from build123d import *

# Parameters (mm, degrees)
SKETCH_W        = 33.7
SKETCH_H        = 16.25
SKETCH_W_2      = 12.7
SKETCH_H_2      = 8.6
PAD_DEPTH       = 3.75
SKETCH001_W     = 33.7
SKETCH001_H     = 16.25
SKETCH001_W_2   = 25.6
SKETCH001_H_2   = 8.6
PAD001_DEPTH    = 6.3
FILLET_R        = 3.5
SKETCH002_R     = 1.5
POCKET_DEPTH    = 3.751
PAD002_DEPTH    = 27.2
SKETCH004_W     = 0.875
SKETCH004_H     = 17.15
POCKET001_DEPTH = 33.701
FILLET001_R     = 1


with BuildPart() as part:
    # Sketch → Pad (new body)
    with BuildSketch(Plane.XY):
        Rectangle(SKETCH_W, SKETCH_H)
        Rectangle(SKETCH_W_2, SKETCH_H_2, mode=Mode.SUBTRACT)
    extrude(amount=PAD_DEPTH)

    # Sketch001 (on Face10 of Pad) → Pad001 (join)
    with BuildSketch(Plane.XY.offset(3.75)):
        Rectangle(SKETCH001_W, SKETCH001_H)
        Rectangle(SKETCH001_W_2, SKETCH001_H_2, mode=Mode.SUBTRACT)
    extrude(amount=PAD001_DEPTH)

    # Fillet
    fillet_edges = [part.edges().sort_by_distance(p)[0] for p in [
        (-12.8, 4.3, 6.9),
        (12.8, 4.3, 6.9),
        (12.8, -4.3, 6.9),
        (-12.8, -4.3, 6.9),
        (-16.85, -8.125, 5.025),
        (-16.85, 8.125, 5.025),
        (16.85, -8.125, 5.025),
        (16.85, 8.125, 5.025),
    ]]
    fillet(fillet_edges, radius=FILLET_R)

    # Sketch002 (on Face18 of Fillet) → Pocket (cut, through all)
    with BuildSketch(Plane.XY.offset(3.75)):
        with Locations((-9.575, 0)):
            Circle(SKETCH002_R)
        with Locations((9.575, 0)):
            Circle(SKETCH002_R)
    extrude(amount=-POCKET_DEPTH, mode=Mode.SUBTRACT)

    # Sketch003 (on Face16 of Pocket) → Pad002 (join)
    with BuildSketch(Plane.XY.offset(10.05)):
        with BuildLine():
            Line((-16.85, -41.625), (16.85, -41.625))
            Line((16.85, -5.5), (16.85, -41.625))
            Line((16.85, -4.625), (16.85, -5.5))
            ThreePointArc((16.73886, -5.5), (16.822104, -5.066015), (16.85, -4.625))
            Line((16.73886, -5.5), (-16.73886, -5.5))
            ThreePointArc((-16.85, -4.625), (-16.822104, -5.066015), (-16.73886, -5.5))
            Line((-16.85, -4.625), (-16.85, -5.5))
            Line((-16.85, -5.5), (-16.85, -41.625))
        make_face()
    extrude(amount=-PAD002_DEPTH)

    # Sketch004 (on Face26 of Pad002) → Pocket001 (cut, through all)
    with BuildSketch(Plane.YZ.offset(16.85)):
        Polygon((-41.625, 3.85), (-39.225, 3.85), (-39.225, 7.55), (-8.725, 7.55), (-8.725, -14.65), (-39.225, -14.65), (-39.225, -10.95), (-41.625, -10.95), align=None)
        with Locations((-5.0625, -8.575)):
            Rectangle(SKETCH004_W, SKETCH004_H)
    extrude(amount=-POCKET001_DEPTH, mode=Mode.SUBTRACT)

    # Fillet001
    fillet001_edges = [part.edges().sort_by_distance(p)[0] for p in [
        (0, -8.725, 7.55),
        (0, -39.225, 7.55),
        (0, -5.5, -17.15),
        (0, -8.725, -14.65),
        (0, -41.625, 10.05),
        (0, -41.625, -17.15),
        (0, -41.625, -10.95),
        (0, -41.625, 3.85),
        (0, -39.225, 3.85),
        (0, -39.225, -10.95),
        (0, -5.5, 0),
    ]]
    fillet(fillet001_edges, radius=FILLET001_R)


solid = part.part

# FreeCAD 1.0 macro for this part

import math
import FreeCAD as App
import Part
import Sketcher
from FreeCAD import Vector
Q = App.Units.Quantity


def edges_at(feature, points):
    """Names of the edges that pass closest to the given points."""
    edges = feature.Shape.Edges
    near = lambda p: min(range(len(edges)), key=lambda i: edges[i].distToShape(Part.Vertex(*p))[0])
    return sorted({f"Edge{near(p) + 1}" for p in points})

doc = App.newDocument("Part")
params = doc.addObject("Spreadsheet::Sheet", "Params")
for row, (alias, value) in enumerate([
    ("sketch1_width", "33.7 mm"),
    ("sketch1_width2", "12.7 mm"),
    ("sketch1_height", "8.6 mm"),
    ("sketch1_height2", "16.25 mm"),
    ("pad1_length", "3.75 mm"),
    ("sketch2_width", "33.7 mm"),
    ("sketch2_width2", "25.6 mm"),
    ("sketch2_height", "8.6 mm"),
    ("sketch2_height2", "16.25 mm"),
    ("pad2_length", "6.3 mm"),
    ("fillet_radius", "3.5 mm"),
    ("sketch3_diameter", "3 mm"),
    ("sketch4_height", "37 mm"),
    ("sketch4_width", "33.7 mm"),
    ("pad3_length", "27.2 mm"),
    ("sketch5_width", "2.4 mm"),
    ("sketch5_width2", "30.5 mm"),
    ("sketch5_height", "14.8 mm"),
    ("sketch5_height2", "3.7 mm"),
    ("sketch5_height3", "17.15 mm"),
    ("fillet2_radius", "1 mm"),
], start=1):
    params.set(f"A{row}", alias)
    params.set(f"B{row}", "=" + value)
    params.setAlias(f"B{row}", alias)

body = doc.addObject("PartDesign::Body", "Body")

# Sketch on XY plane
sketch1 = doc.addObject("Sketcher::SketchObject", "Sketch")
body.addObject(sketch1)
sketch1.AttachmentSupport = (doc.XY_Plane, [""])
sketch1.MapMode = "FlatFace"
sketch1.addGeometry([
    Part.LineSegment(Vector(-17, 8, 0), Vector(-17, -8, 0)),  # 0
    Part.LineSegment(Vector(-17, -8, 0), Vector(17, -8, 0)),  # 1
    Part.LineSegment(Vector(17, -8, 0), Vector(17, 8, 0)),  # 2
    Part.LineSegment(Vector(17, 8, 0), Vector(-17, 8, 0)),  # 3
    Part.LineSegment(Vector(6, -4, 0), Vector(-6, -4, 0)),  # 4
    Part.LineSegment(Vector(-6, -4, 0), Vector(-6, 4, 0)),  # 5
    Part.LineSegment(Vector(-6, 4, 0), Vector(6, 4, 0)),  # 6
    Part.LineSegment(Vector(6, 4, 0), Vector(6, -4, 0)),  # 7
], False)
sketch1.addConstraint([
    Sketcher.Constraint("Coincident", 0, 2, 1, 1),
    Sketcher.Constraint("Coincident", 1, 2, 2, 1),
    Sketcher.Constraint("Coincident", 2, 2, 3, 1),
    Sketcher.Constraint("Coincident", 3, 2, 0, 1),
    Sketcher.Constraint("Coincident", 4, 2, 5, 1),
    Sketcher.Constraint("Coincident", 5, 2, 6, 1),
    Sketcher.Constraint("Coincident", 6, 2, 7, 1),
    Sketcher.Constraint("Coincident", 7, 2, 4, 1),
    Sketcher.Constraint("Vertical", 0),
    Sketcher.Constraint("Horizontal", 1),
    Sketcher.Constraint("Vertical", 2),
    Sketcher.Constraint("Horizontal", 3),
    Sketcher.Constraint("Horizontal", 4),
    Sketcher.Constraint("Vertical", 5),
    Sketcher.Constraint("Horizontal", 6),
    Sketcher.Constraint("Vertical", 7),
    Sketcher.Constraint("Symmetric", 0, 2, 2, 2, -1, 1),
    Sketcher.Constraint("Symmetric", 4, 2, 6, 2, -1, 1),
    Sketcher.Constraint("DistanceX", 1, 1, 1, 2, Q("33.7 mm")),
    Sketcher.Constraint("DistanceX", 4, 2, 4, 1, Q("12.7 mm")),
    Sketcher.Constraint("DistanceY", 5, 1, 5, 2, Q("8.6 mm")),
    Sketcher.Constraint("DistanceY", 0, 2, 0, 1, Q("16.25 mm")),
])
sketch1.setExpression("Constraints[18]", "Params.sketch1_width")
sketch1.setExpression("Constraints[19]", "Params.sketch1_width2")
sketch1.setExpression("Constraints[20]", "Params.sketch1_height")
sketch1.setExpression("Constraints[21]", "Params.sketch1_height2")
pad1 = doc.addObject("PartDesign::Pad", "Pad")
body.addObject(pad1)
pad1.Profile = sketch1
pad1.setExpression("Length", "Params.pad1_length")

# Sketch on XY plane
sketch2 = doc.addObject("Sketcher::SketchObject", "Sketch001")
body.addObject(sketch2)
sketch2.AttachmentSupport = (doc.XY_Plane, [""])
sketch2.MapMode = "FlatFace"
sketch2.AttachmentOffset = App.Placement(Vector(0, 0, 3.75), App.Rotation())
sketch2.addGeometry([
    Part.LineSegment(Vector(-17, 8, 0), Vector(-17, -8, 0)),  # 0
    Part.LineSegment(Vector(-17, -8, 0), Vector(17, -8, 0)),  # 1
    Part.LineSegment(Vector(17, -8, 0), Vector(17, 8, 0)),  # 2
    Part.LineSegment(Vector(17, 8, 0), Vector(-17, 8, 0)),  # 3
    Part.LineSegment(Vector(13, -4, 0), Vector(-13, -4, 0)),  # 4
    Part.LineSegment(Vector(-13, -4, 0), Vector(-13, 4, 0)),  # 5
    Part.LineSegment(Vector(-13, 4, 0), Vector(13, 4, 0)),  # 6
    Part.LineSegment(Vector(13, 4, 0), Vector(13, -4, 0)),  # 7
], False)
sketch2.addConstraint([
    Sketcher.Constraint("Coincident", 0, 2, 1, 1),
    Sketcher.Constraint("Coincident", 1, 2, 2, 1),
    Sketcher.Constraint("Coincident", 2, 2, 3, 1),
    Sketcher.Constraint("Coincident", 3, 2, 0, 1),
    Sketcher.Constraint("Coincident", 4, 2, 5, 1),
    Sketcher.Constraint("Coincident", 5, 2, 6, 1),
    Sketcher.Constraint("Coincident", 6, 2, 7, 1),
    Sketcher.Constraint("Coincident", 7, 2, 4, 1),
    Sketcher.Constraint("Vertical", 0),
    Sketcher.Constraint("Horizontal", 1),
    Sketcher.Constraint("Vertical", 2),
    Sketcher.Constraint("Horizontal", 3),
    Sketcher.Constraint("Horizontal", 4),
    Sketcher.Constraint("Vertical", 5),
    Sketcher.Constraint("Horizontal", 6),
    Sketcher.Constraint("Vertical", 7),
    Sketcher.Constraint("Symmetric", 0, 2, 2, 2, -1, 1),
    Sketcher.Constraint("Symmetric", 4, 2, 6, 2, -1, 1),
    Sketcher.Constraint("DistanceX", 1, 1, 1, 2, Q("33.7 mm")),
    Sketcher.Constraint("DistanceX", 4, 2, 4, 1, Q("25.6 mm")),
    Sketcher.Constraint("DistanceY", 5, 1, 5, 2, Q("8.6 mm")),
    Sketcher.Constraint("DistanceY", 0, 2, 0, 1, Q("16.25 mm")),
])
sketch2.setExpression("Constraints[18]", "Params.sketch2_width")
sketch2.setExpression("Constraints[19]", "Params.sketch2_width2")
sketch2.setExpression("Constraints[20]", "Params.sketch2_height")
sketch2.setExpression("Constraints[21]", "Params.sketch2_height2")
pad2 = doc.addObject("PartDesign::Pad", "Pad001")
body.addObject(pad2)
pad2.Profile = sketch2
pad2.setExpression("Length", "Params.pad2_length")
doc.recompute()

fillet = doc.addObject("PartDesign::Fillet", "Fillet")
body.addObject(fillet)
fillet.Base = (pad2, edges_at(pad2, [
    (-12.8, 4.3, 6.9),
    (12.8, 4.3, 6.9),
    (12.8, -4.3, 6.9),
    (-12.8, -4.3, 6.9),
    (-16.85, -8.125, 5.025),
    (-16.85, 8.125, 5.025),
    (16.85, -8.125, 5.025),
    (16.85, 8.125, 5.025),
]))
fillet.setExpression("Radius", "Params.fillet_radius")

# Sketch on XY plane
sketch3 = doc.addObject("Sketcher::SketchObject", "Sketch002")
body.addObject(sketch3)
sketch3.AttachmentSupport = (doc.XY_Plane, [""])
sketch3.MapMode = "FlatFace"
sketch3.AttachmentOffset = App.Placement(Vector(0, 0, 3.75), App.Rotation())
sketch3.addGeometry([
    Part.Circle(Vector(-9.6, 0, 0), Vector(0, 0, 1), 1.5),
    Part.Circle(Vector(9.6, 0, 0), Vector(0, 0, 1), 1.5),
], False)
sketch3.addConstraint([
    Sketcher.Constraint("Equal", 0, 1),
    Sketcher.Constraint("Symmetric", 0, 3, 1, 3, -1, 1),
    Sketcher.Constraint("PointOnObject", 0, 3, -1),
    Sketcher.Constraint("Diameter", 0, Q("3 mm")),
    Sketcher.Constraint("DistanceX", 0, 3, 1, 3, Q("19.15 mm")),
])
sketch3.setExpression("Constraints[3]", "Params.sketch3_diameter")
pocket1 = doc.addObject("PartDesign::Pocket", "Pocket")
body.addObject(pocket1)
pocket1.Profile = sketch3
pocket1.Type = "ThroughAll"

# Sketch on XY plane
sketch4 = doc.addObject("Sketcher::SketchObject", "Sketch003")
body.addObject(sketch4)
sketch4.AttachmentSupport = (doc.XY_Plane, [""])
sketch4.MapMode = "FlatFace"
sketch4.AttachmentOffset = App.Placement(Vector(0, 0, 10.05), App.Rotation())
sketch4.addGeometry([
    Part.LineSegment(Vector(-16.9, -41.6, 0), Vector(16.9, -41.6, 0)),  # 0
    Part.LineSegment(Vector(16.9, -41.6, 0), Vector(16.9, -4.6, 0)),  # 1
    Part.ArcOfCircle(Part.Circle(Vector(13.4, -4.6, 0), Vector(0, 0, 1), 3.5), math.radians(-14.48), math.radians(0)),  # 2
    Part.LineSegment(Vector(16.7, -5.5, 0), Vector(-16.7, -5.5, 0)),  # 3
    Part.ArcOfCircle(Part.Circle(Vector(-13.4, -4.6, 0), Vector(0, 0, 1), 3.5), math.radians(180), math.radians(194.48)),  # 4
    Part.LineSegment(Vector(-16.9, -4.6, 0), Vector(-16.9, -41.6, 0)),  # 5
], False)
sketch4.addConstraint([
    Sketcher.Constraint("Coincident", 0, 2, 1, 1),
    Sketcher.Constraint("Tangent", 1, 2, 2, 2),
    Sketcher.Constraint("Coincident", 2, 1, 3, 1),
    Sketcher.Constraint("Coincident", 3, 2, 4, 2),
    Sketcher.Constraint("Tangent", 4, 1, 5, 1),
    Sketcher.Constraint("Coincident", 5, 2, 0, 1),
    Sketcher.Constraint("Horizontal", 0),
    Sketcher.Constraint("Vertical", 1),
    Sketcher.Constraint("Horizontal", 3),
    Sketcher.Constraint("Vertical", 5),
    Sketcher.Constraint("Equal", 2, 4),
    Sketcher.Constraint("Symmetric", 2, 3, 4, 3, -2),
    Sketcher.Constraint("DistanceY", 1, 1, 1, 2, Q("37 mm")),
    Sketcher.Constraint("DistanceX", 0, 1, 0, 2, Q("33.7 mm")),
    Sketcher.Constraint("DistanceY", 2, 1, -1, 1, Q("5.5 mm")),
    Sketcher.Constraint("DistanceY", 0, 2, -1, 1, Q("41.625 mm")),
    Sketcher.Constraint("Radius", 2, Q("3.499967 mm")),
])
sketch4.setExpression("Constraints[12]", "Params.sketch4_height")
sketch4.setExpression("Constraints[13]", "Params.sketch4_width")
pad3 = doc.addObject("PartDesign::Pad", "Pad002")
body.addObject(pad3)
pad3.Profile = sketch4
pad3.setExpression("Length", "Params.pad3_length")
pad3.Reversed = True

# Sketch on YZ plane
sketch5 = doc.addObject("Sketcher::SketchObject", "Sketch004")
body.addObject(sketch5)
sketch5.AttachmentSupport = (doc.YZ_Plane, [""])
sketch5.MapMode = "FlatFace"
sketch5.AttachmentOffset = App.Placement(Vector(0, 0, 16.85), App.Rotation())
sketch5.addGeometry([
    Part.LineSegment(Vector(-39.2, 3.9, 0), Vector(-41.6, 3.9, 0)),  # 0
    Part.LineSegment(Vector(-41.6, 3.9, 0), Vector(-41.6, -10.9, 0)),  # 1
    Part.LineSegment(Vector(-41.6, -10.9, 0), Vector(-39.2, -10.9, 0)),  # 2
    Part.LineSegment(Vector(-39.2, -10.9, 0), Vector(-39.2, -14.7, 0)),  # 3
    Part.LineSegment(Vector(-39.2, -14.7, 0), Vector(-8.7, -14.7, 0)),  # 4
    Part.LineSegment(Vector(-8.7, -14.7, 0), Vector(-8.7, 7.5, 0)),  # 5
    Part.LineSegment(Vector(-8.7, 7.5, 0), Vector(-39.2, 7.5, 0)),  # 6
    Part.LineSegment(Vector(-39.2, 7.5, 0), Vector(-39.2, 3.9, 0)),  # 7
    Part.LineSegment(Vector(-5.5, 0, 0), Vector(-5.5, -17.1, 0)),  # 8
    Part.LineSegment(Vector(-5.5, -17.1, 0), Vector(-4.6, -17.1, 0)),  # 9
    Part.LineSegment(Vector(-4.6, -17.1, 0), Vector(-4.6, 0, 0)),  # 10
    Part.LineSegment(Vector(-4.6, 0, 0), Vector(-5.5, 0, 0)),  # 11
], False)
sketch5.addConstraint([
    Sketcher.Constraint("Coincident", 0, 2, 1, 1),
    Sketcher.Constraint("Coincident", 1, 2, 2, 1),
    Sketcher.Constraint("Coincident", 2, 2, 3, 1),
    Sketcher.Constraint("Coincident", 3, 2, 4, 1),
    Sketcher.Constraint("Coincident", 4, 2, 5, 1),
    Sketcher.Constraint("Coincident", 5, 2, 6, 1),
    Sketcher.Constraint("Coincident", 6, 2, 7, 1),
    Sketcher.Constraint("Coincident", 7, 2, 0, 1),
    Sketcher.Constraint("Coincident", 8, 2, 9, 1),
    Sketcher.Constraint("Coincident", 9, 2, 10, 1),
    Sketcher.Constraint("Coincident", 10, 2, 11, 1),
    Sketcher.Constraint("Coincident", 11, 2, 8, 1),
    Sketcher.Constraint("Horizontal", 0),
    Sketcher.Constraint("Vertical", 1),
    Sketcher.Constraint("Horizontal", 2),
    Sketcher.Constraint("Vertical", 3),
    Sketcher.Constraint("Horizontal", 4),
    Sketcher.Constraint("Vertical", 5),
    Sketcher.Constraint("Horizontal", 6),
    Sketcher.Constraint("Vertical", 7),
    Sketcher.Constraint("Vertical", 8),
    Sketcher.Constraint("Horizontal", 9),
    Sketcher.Constraint("Vertical", 10),
    Sketcher.Constraint("Horizontal", 11),
    Sketcher.Constraint("PointOnObject", 10, 2, -1),
    Sketcher.Constraint("Vertical", 3, 2, 6, 2),
    Sketcher.Constraint("Equal", 3, 7),
    Sketcher.Constraint("DistanceX", 0, 2, 0, 1, Q("2.4 mm")),
    Sketcher.Constraint("DistanceX", 4, 1, 4, 2, Q("30.5 mm")),
    Sketcher.Constraint("DistanceY", 1, 2, 1, 1, Q("14.8 mm")),
    Sketcher.Constraint("DistanceY", 3, 2, 3, 1, Q("3.7 mm")),
    Sketcher.Constraint("DistanceY", 8, 2, 8, 1, Q("17.15 mm")),
    Sketcher.Constraint("DistanceX", 8, 2, -1, 1, Q("5.5 mm")),
    Sketcher.Constraint("DistanceY", 8, 2, 4, 2, Q("2.5 mm")),
    Sketcher.Constraint("DistanceX", 4, 2, 9, 2, Q("4.1 mm")),
    Sketcher.Constraint("DistanceX", 9, 1, 9, 2, Q("0.875 mm")),
])
sketch5.setExpression("Constraints[27]", "Params.sketch5_width")
sketch5.setExpression("Constraints[28]", "Params.sketch5_width2")
sketch5.setExpression("Constraints[29]", "Params.sketch5_height")
sketch5.setExpression("Constraints[30]", "Params.sketch5_height2")
sketch5.setExpression("Constraints[31]", "Params.sketch5_height3")
pocket2 = doc.addObject("PartDesign::Pocket", "Pocket001")
body.addObject(pocket2)
pocket2.Profile = sketch5
pocket2.Type = "ThroughAll"
doc.recompute()

fillet2 = doc.addObject("PartDesign::Fillet", "Fillet001")
body.addObject(fillet2)
fillet2.Base = (pocket2, edges_at(pocket2, [
    (0, -8.725, 7.55),
    (0, -39.225, 7.55),
    (0, -5.5, -17.15),
    (0, -8.725, -14.65),
    (0, -41.625, 10.05),
    (0, -41.625, -17.15),
    (0, -41.625, -10.95),
    (0, -41.625, 3.85),
    (0, -39.225, 3.85),
    (0, -39.225, -10.95),
    (0, -5.5, 0),
]))
fillet2.setExpression("Radius", "Params.fillet2_radius")

doc.recompute()
